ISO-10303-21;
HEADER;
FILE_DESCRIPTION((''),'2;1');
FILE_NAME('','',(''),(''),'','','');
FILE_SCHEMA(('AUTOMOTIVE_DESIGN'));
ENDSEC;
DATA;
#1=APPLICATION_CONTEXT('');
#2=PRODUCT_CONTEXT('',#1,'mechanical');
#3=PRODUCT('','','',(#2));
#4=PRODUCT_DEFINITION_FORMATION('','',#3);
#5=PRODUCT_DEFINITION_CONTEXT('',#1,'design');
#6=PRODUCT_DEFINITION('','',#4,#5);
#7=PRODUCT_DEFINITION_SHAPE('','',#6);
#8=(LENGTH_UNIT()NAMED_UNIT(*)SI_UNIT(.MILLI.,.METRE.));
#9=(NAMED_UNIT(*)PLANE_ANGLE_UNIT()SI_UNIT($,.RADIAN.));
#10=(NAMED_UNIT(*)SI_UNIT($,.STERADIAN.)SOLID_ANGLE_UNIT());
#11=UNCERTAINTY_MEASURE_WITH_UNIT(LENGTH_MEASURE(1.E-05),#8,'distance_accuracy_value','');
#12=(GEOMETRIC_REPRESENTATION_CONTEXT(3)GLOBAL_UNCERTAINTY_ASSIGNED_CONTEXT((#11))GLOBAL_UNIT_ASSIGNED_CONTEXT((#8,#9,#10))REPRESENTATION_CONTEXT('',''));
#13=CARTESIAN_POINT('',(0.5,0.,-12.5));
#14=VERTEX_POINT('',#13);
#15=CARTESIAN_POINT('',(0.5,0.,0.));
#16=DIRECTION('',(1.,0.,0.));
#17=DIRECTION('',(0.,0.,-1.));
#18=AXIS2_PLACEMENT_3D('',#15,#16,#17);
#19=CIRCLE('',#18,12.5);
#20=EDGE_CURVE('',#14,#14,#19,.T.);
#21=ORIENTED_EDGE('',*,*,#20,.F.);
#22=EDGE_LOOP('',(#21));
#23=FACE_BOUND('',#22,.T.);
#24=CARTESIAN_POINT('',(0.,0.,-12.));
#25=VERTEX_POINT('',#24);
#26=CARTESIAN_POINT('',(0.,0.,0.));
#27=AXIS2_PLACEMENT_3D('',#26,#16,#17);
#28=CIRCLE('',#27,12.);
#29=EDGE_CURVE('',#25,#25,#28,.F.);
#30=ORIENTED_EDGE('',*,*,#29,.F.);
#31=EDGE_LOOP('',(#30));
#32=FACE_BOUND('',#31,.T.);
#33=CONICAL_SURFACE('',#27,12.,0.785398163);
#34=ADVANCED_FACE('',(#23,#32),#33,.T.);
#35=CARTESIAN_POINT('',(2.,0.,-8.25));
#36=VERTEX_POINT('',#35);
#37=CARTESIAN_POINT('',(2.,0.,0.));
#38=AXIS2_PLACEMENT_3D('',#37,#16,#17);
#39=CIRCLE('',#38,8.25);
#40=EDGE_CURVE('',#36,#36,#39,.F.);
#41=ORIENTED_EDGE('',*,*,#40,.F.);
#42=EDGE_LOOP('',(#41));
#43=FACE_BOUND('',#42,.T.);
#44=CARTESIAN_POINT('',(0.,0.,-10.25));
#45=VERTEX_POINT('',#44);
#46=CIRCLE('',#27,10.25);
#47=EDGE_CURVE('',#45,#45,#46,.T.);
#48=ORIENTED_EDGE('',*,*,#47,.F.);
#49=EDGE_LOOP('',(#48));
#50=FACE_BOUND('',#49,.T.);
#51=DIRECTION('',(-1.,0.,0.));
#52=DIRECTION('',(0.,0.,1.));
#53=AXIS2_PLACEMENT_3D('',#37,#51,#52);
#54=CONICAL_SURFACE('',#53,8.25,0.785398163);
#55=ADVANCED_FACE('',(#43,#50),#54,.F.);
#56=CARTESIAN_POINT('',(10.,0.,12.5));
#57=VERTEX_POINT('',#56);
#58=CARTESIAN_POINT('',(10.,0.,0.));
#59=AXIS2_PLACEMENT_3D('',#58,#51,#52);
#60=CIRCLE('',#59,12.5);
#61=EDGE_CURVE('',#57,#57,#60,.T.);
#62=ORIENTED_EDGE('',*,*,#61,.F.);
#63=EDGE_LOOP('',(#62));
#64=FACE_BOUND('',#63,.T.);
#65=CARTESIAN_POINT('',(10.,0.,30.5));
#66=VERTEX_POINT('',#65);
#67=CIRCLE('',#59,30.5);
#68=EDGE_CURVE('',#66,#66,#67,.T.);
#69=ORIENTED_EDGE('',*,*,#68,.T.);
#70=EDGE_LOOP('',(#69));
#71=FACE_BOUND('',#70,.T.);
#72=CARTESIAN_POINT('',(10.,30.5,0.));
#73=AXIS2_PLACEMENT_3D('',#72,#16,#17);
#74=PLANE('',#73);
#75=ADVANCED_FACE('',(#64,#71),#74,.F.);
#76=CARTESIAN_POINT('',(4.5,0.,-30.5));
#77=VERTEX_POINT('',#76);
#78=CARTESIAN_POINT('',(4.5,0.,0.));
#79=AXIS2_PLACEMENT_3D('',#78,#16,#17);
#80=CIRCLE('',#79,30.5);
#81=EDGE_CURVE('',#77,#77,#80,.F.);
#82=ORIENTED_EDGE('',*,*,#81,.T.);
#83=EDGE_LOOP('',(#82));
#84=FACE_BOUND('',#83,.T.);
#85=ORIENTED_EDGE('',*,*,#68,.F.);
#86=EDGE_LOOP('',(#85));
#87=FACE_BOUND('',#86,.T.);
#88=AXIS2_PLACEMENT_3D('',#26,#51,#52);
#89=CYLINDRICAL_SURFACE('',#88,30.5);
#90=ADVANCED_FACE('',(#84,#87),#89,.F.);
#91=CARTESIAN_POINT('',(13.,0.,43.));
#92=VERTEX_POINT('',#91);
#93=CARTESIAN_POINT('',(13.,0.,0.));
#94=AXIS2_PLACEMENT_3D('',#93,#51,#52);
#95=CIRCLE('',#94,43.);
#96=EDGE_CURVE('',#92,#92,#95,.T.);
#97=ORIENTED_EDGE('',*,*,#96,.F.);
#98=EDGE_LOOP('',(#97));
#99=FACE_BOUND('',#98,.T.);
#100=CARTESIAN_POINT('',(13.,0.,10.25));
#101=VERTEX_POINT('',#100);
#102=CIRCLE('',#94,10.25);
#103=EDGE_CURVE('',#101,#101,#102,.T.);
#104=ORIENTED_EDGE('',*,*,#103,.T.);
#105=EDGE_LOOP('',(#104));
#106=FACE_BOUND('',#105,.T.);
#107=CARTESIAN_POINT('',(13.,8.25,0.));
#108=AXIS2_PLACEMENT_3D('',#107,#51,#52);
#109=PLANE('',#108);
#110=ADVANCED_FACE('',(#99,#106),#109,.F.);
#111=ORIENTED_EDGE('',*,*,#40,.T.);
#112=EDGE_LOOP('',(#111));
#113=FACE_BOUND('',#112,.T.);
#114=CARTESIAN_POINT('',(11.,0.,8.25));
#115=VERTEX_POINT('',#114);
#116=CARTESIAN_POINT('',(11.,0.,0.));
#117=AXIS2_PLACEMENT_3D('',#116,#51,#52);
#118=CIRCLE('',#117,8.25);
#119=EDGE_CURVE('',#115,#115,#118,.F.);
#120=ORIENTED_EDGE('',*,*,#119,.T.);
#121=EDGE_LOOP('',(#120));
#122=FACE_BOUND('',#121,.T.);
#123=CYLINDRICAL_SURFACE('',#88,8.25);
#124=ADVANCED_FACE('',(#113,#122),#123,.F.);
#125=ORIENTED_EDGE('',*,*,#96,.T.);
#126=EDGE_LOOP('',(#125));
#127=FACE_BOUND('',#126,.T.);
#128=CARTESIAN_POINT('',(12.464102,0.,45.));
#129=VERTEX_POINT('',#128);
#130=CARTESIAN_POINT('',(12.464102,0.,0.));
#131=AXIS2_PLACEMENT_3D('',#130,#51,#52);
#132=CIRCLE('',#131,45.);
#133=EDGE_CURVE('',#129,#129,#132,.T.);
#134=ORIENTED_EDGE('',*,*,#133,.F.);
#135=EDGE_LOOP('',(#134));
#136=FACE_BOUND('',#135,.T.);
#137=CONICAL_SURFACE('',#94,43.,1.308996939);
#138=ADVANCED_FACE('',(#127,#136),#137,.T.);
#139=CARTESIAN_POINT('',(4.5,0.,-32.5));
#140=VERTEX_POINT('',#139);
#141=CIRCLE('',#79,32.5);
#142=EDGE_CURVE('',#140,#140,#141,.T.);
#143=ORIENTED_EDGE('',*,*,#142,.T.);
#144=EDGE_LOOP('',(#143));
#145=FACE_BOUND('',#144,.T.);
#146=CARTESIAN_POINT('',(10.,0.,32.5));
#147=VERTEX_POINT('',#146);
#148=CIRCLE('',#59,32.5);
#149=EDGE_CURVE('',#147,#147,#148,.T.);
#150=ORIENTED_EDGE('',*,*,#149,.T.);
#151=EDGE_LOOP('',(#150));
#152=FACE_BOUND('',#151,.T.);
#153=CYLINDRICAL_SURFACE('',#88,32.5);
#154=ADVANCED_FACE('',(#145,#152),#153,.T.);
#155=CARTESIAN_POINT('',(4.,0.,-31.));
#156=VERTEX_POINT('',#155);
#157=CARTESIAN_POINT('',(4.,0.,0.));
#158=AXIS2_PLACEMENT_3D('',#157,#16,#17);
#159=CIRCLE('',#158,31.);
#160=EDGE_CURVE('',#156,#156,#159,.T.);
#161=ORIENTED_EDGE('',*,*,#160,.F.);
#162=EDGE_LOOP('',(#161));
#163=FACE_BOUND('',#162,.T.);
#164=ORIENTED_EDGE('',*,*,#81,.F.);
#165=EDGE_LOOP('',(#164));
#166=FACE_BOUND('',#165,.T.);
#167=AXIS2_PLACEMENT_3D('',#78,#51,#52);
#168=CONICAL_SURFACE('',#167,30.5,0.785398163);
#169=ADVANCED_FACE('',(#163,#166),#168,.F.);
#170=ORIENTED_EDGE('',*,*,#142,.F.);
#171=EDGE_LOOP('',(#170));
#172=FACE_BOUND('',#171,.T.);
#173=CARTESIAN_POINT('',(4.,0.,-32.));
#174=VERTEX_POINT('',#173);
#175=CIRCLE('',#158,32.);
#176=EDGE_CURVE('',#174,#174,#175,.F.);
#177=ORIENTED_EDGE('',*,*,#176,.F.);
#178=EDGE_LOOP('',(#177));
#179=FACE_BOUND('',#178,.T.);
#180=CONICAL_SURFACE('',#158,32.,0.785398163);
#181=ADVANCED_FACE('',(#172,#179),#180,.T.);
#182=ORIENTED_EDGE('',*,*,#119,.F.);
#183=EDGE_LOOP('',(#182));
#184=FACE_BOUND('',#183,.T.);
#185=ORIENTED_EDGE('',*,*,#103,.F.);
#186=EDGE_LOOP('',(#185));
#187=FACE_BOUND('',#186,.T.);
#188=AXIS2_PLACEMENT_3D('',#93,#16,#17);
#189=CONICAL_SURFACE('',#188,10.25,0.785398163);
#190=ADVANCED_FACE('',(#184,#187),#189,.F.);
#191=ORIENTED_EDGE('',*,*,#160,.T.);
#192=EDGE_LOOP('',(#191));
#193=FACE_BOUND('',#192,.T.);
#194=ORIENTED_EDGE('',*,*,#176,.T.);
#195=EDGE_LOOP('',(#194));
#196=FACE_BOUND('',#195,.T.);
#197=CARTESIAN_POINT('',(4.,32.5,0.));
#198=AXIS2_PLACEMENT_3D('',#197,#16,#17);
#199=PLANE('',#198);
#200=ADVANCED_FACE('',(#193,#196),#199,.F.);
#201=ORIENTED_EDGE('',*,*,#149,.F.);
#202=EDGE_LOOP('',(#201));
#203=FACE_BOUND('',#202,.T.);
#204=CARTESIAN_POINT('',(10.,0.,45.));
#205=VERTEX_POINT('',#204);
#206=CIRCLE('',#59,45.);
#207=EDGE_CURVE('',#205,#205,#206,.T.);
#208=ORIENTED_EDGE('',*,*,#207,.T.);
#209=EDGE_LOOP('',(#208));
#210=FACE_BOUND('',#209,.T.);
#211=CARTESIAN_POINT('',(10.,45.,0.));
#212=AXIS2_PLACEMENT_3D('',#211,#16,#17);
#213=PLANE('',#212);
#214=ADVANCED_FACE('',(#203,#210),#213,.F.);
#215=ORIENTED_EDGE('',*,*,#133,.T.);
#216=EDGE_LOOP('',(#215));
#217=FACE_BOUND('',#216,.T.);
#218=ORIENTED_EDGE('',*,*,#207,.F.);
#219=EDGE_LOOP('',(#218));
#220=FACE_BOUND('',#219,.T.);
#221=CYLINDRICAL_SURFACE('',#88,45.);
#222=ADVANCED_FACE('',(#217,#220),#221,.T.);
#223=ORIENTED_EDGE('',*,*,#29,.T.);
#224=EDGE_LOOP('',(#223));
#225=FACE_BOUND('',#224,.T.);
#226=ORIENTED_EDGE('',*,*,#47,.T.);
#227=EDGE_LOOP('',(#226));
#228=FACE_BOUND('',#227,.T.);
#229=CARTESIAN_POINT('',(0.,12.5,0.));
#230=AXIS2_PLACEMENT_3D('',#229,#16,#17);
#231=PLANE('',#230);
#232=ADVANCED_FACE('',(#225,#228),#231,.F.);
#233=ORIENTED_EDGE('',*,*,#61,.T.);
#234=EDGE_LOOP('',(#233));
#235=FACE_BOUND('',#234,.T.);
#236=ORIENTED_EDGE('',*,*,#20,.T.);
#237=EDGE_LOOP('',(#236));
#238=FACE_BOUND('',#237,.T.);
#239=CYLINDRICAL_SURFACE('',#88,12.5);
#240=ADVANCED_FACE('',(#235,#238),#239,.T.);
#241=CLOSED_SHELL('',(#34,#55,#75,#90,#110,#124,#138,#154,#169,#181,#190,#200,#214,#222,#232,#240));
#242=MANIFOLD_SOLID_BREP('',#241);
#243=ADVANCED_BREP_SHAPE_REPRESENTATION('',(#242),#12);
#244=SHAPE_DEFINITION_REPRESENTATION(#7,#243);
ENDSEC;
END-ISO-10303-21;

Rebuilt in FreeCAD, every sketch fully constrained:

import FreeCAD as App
import Part
import Sketcher
Q = App.Units.Quantity


def edges_at(feature, points):
    """Names of the edges that pass closest to the given points."""
    edges = feature.Shape.Edges
    near = lambda p: min(range(len(edges)), key=lambda i: edges[i].distToShape(Part.Vertex(*p))[0])
    return sorted({f"Edge{near(p) + 1}" for p in points})

doc = App.newDocument("Part")
body = doc.addObject("PartDesign::Body", "Body")

sketch1 = body.newObject("Sketcher::SketchObject", "Sketch")
sketch1.AttachmentSupport = (doc.getObject("XY_Plane"), [""])
sketch1.MapMode = "FlatFace"
sketch1.addGeometry(Part.LineSegment(App.Vector(0, 8.2, 0), App.Vector(13, 8.2, 0)), False)
sketch1.addGeometry(Part.LineSegment(App.Vector(13, 8.2, 0), App.Vector(13, 43, 0)), False)
sketch1.addGeometry(Part.LineSegment(App.Vector(13, 43, 0), App.Vector(12.5, 45, 0)), False)
sketch1.addGeometry(Part.LineSegment(App.Vector(12.5, 45, 0), App.Vector(10, 45, 0)), False)
sketch1.addGeometry(Part.LineSegment(App.Vector(10, 45, 0), App.Vector(10, 32.5, 0)), False)
sketch1.addGeometry(Part.LineSegment(App.Vector(10, 32.5, 0), App.Vector(4, 32.5, 0)), False)
sketch1.addGeometry(Part.LineSegment(App.Vector(4, 32.5, 0), App.Vector(4, 30.5, 0)), False)
sketch1.addGeometry(Part.LineSegment(App.Vector(4, 30.5, 0), App.Vector(10, 30.5, 0)), False)
sketch1.addGeometry(Part.LineSegment(App.Vector(10, 30.5, 0), App.Vector(10, 12.5, 0)), False)
sketch1.addGeometry(Part.LineSegment(App.Vector(10, 12.5, 0), App.Vector(0, 12.5, 0)), False)
sketch1.addGeometry(Part.LineSegment(App.Vector(0, 12.5, 0), App.Vector(0, 8.2, 0)), False)
sketch1.addConstraint(Sketcher.Constraint("Coincident", 0, 2, 1, 1))
sketch1.addConstraint(Sketcher.Constraint("Coincident", 1, 2, 2, 1))
sketch1.addConstraint(Sketcher.Constraint("Coincident", 2, 2, 3, 1))
sketch1.addConstraint(Sketcher.Constraint("Coincident", 3, 2, 4, 1))
sketch1.addConstraint(Sketcher.Constraint("Coincident", 4, 2, 5, 1))
sketch1.addConstraint(Sketcher.Constraint("Coincident", 5, 2, 6, 1))
sketch1.addConstraint(Sketcher.Constraint("Coincident", 6, 2, 7, 1))
sketch1.addConstraint(Sketcher.Constraint("Coincident", 7, 2, 8, 1))
sketch1.addConstraint(Sketcher.Constraint("Coincident", 8, 2, 9, 1))
sketch1.addConstraint(Sketcher.Constraint("Coincident", 9, 2, 10, 1))
sketch1.addConstraint(Sketcher.Constraint("Coincident", 10, 2, 0, 1))
sketch1.addConstraint(Sketcher.Constraint("Horizontal", 0))
sketch1.addConstraint(Sketcher.Constraint("Vertical", 1))
sketch1.addConstraint(Sketcher.Constraint("Horizontal", 3))
sketch1.addConstraint(Sketcher.Constraint("Vertical", 4))
sketch1.addConstraint(Sketcher.Constraint("Horizontal", 5))
sketch1.addConstraint(Sketcher.Constraint("Vertical", 6))
sketch1.addConstraint(Sketcher.Constraint("Horizontal", 7))
sketch1.addConstraint(Sketcher.Constraint("Vertical", 8))
sketch1.addConstraint(Sketcher.Constraint("Horizontal", 9))
sketch1.addConstraint(Sketcher.Constraint("Vertical", 10))
sketch1.addConstraint(Sketcher.Constraint("PointOnObject", 9, 2, -2))
sketch1.addConstraint(Sketcher.Constraint("Vertical", 4, 2, 7, 2))
sketch1.addConstraint(Sketcher.Constraint("DistanceX", 0, 1, 0, 2, Q("13 mm")))
sketch1.addConstraint(Sketcher.Constraint("DistanceX", 5, 2, 5, 1, Q("6 mm")))
sketch1.addConstraint(Sketcher.Constraint("DistanceX", 9, 2, 9, 1, Q("10 mm")))
sketch1.addConstraint(Sketcher.Constraint("DistanceY", 6, 2, 6, 1, Q("2 mm")))
sketch1.addConstraint(Sketcher.Constraint("DistanceY", 8, 2, 8, 1, Q("18 mm")))
sketch1.addConstraint(Sketcher.Constraint("Angle", 2, Q("105 deg")))
sketch1.addConstraint(Sketcher.Constraint("DistanceY", 4, 2, 4, 1, Q("12.5 mm")))
sketch1.addConstraint(Sketcher.Constraint("DistanceY", -1, 1, 1, 2, Q("43 mm")))
sketch1.addConstraint(Sketcher.Constraint("DistanceY", -1, 1, 2, 2, Q("45 mm")))
sketch1.addConstraint(Sketcher.Constraint("DistanceY", 1, 1, 1, 2, Q("34.75 mm")))
revolution = body.newObject("PartDesign::Revolution", "Revolution")
revolution.Profile = sketch1
revolution.ReferenceAxis = (sketch1, ["H_Axis"])
revolution.Angle = 360
doc.recompute()

chamfer = body.newObject("PartDesign::Chamfer", "Chamfer")
chamfer.Base = (revolution, edges_at(revolution, [(13, -8.25, 0), (0, -8.25, 0)]))
chamfer.Size = 2
doc.recompute()

chamfer2 = body.newObject("PartDesign::Chamfer", "Chamfer001")
chamfer2.Base = (chamfer, edges_at(chamfer, [(4, -30.5, 0), (4, -32.5, 0), (0, -12.5, 0)]))
chamfer2.Size = 0.5

doc.recompute()
